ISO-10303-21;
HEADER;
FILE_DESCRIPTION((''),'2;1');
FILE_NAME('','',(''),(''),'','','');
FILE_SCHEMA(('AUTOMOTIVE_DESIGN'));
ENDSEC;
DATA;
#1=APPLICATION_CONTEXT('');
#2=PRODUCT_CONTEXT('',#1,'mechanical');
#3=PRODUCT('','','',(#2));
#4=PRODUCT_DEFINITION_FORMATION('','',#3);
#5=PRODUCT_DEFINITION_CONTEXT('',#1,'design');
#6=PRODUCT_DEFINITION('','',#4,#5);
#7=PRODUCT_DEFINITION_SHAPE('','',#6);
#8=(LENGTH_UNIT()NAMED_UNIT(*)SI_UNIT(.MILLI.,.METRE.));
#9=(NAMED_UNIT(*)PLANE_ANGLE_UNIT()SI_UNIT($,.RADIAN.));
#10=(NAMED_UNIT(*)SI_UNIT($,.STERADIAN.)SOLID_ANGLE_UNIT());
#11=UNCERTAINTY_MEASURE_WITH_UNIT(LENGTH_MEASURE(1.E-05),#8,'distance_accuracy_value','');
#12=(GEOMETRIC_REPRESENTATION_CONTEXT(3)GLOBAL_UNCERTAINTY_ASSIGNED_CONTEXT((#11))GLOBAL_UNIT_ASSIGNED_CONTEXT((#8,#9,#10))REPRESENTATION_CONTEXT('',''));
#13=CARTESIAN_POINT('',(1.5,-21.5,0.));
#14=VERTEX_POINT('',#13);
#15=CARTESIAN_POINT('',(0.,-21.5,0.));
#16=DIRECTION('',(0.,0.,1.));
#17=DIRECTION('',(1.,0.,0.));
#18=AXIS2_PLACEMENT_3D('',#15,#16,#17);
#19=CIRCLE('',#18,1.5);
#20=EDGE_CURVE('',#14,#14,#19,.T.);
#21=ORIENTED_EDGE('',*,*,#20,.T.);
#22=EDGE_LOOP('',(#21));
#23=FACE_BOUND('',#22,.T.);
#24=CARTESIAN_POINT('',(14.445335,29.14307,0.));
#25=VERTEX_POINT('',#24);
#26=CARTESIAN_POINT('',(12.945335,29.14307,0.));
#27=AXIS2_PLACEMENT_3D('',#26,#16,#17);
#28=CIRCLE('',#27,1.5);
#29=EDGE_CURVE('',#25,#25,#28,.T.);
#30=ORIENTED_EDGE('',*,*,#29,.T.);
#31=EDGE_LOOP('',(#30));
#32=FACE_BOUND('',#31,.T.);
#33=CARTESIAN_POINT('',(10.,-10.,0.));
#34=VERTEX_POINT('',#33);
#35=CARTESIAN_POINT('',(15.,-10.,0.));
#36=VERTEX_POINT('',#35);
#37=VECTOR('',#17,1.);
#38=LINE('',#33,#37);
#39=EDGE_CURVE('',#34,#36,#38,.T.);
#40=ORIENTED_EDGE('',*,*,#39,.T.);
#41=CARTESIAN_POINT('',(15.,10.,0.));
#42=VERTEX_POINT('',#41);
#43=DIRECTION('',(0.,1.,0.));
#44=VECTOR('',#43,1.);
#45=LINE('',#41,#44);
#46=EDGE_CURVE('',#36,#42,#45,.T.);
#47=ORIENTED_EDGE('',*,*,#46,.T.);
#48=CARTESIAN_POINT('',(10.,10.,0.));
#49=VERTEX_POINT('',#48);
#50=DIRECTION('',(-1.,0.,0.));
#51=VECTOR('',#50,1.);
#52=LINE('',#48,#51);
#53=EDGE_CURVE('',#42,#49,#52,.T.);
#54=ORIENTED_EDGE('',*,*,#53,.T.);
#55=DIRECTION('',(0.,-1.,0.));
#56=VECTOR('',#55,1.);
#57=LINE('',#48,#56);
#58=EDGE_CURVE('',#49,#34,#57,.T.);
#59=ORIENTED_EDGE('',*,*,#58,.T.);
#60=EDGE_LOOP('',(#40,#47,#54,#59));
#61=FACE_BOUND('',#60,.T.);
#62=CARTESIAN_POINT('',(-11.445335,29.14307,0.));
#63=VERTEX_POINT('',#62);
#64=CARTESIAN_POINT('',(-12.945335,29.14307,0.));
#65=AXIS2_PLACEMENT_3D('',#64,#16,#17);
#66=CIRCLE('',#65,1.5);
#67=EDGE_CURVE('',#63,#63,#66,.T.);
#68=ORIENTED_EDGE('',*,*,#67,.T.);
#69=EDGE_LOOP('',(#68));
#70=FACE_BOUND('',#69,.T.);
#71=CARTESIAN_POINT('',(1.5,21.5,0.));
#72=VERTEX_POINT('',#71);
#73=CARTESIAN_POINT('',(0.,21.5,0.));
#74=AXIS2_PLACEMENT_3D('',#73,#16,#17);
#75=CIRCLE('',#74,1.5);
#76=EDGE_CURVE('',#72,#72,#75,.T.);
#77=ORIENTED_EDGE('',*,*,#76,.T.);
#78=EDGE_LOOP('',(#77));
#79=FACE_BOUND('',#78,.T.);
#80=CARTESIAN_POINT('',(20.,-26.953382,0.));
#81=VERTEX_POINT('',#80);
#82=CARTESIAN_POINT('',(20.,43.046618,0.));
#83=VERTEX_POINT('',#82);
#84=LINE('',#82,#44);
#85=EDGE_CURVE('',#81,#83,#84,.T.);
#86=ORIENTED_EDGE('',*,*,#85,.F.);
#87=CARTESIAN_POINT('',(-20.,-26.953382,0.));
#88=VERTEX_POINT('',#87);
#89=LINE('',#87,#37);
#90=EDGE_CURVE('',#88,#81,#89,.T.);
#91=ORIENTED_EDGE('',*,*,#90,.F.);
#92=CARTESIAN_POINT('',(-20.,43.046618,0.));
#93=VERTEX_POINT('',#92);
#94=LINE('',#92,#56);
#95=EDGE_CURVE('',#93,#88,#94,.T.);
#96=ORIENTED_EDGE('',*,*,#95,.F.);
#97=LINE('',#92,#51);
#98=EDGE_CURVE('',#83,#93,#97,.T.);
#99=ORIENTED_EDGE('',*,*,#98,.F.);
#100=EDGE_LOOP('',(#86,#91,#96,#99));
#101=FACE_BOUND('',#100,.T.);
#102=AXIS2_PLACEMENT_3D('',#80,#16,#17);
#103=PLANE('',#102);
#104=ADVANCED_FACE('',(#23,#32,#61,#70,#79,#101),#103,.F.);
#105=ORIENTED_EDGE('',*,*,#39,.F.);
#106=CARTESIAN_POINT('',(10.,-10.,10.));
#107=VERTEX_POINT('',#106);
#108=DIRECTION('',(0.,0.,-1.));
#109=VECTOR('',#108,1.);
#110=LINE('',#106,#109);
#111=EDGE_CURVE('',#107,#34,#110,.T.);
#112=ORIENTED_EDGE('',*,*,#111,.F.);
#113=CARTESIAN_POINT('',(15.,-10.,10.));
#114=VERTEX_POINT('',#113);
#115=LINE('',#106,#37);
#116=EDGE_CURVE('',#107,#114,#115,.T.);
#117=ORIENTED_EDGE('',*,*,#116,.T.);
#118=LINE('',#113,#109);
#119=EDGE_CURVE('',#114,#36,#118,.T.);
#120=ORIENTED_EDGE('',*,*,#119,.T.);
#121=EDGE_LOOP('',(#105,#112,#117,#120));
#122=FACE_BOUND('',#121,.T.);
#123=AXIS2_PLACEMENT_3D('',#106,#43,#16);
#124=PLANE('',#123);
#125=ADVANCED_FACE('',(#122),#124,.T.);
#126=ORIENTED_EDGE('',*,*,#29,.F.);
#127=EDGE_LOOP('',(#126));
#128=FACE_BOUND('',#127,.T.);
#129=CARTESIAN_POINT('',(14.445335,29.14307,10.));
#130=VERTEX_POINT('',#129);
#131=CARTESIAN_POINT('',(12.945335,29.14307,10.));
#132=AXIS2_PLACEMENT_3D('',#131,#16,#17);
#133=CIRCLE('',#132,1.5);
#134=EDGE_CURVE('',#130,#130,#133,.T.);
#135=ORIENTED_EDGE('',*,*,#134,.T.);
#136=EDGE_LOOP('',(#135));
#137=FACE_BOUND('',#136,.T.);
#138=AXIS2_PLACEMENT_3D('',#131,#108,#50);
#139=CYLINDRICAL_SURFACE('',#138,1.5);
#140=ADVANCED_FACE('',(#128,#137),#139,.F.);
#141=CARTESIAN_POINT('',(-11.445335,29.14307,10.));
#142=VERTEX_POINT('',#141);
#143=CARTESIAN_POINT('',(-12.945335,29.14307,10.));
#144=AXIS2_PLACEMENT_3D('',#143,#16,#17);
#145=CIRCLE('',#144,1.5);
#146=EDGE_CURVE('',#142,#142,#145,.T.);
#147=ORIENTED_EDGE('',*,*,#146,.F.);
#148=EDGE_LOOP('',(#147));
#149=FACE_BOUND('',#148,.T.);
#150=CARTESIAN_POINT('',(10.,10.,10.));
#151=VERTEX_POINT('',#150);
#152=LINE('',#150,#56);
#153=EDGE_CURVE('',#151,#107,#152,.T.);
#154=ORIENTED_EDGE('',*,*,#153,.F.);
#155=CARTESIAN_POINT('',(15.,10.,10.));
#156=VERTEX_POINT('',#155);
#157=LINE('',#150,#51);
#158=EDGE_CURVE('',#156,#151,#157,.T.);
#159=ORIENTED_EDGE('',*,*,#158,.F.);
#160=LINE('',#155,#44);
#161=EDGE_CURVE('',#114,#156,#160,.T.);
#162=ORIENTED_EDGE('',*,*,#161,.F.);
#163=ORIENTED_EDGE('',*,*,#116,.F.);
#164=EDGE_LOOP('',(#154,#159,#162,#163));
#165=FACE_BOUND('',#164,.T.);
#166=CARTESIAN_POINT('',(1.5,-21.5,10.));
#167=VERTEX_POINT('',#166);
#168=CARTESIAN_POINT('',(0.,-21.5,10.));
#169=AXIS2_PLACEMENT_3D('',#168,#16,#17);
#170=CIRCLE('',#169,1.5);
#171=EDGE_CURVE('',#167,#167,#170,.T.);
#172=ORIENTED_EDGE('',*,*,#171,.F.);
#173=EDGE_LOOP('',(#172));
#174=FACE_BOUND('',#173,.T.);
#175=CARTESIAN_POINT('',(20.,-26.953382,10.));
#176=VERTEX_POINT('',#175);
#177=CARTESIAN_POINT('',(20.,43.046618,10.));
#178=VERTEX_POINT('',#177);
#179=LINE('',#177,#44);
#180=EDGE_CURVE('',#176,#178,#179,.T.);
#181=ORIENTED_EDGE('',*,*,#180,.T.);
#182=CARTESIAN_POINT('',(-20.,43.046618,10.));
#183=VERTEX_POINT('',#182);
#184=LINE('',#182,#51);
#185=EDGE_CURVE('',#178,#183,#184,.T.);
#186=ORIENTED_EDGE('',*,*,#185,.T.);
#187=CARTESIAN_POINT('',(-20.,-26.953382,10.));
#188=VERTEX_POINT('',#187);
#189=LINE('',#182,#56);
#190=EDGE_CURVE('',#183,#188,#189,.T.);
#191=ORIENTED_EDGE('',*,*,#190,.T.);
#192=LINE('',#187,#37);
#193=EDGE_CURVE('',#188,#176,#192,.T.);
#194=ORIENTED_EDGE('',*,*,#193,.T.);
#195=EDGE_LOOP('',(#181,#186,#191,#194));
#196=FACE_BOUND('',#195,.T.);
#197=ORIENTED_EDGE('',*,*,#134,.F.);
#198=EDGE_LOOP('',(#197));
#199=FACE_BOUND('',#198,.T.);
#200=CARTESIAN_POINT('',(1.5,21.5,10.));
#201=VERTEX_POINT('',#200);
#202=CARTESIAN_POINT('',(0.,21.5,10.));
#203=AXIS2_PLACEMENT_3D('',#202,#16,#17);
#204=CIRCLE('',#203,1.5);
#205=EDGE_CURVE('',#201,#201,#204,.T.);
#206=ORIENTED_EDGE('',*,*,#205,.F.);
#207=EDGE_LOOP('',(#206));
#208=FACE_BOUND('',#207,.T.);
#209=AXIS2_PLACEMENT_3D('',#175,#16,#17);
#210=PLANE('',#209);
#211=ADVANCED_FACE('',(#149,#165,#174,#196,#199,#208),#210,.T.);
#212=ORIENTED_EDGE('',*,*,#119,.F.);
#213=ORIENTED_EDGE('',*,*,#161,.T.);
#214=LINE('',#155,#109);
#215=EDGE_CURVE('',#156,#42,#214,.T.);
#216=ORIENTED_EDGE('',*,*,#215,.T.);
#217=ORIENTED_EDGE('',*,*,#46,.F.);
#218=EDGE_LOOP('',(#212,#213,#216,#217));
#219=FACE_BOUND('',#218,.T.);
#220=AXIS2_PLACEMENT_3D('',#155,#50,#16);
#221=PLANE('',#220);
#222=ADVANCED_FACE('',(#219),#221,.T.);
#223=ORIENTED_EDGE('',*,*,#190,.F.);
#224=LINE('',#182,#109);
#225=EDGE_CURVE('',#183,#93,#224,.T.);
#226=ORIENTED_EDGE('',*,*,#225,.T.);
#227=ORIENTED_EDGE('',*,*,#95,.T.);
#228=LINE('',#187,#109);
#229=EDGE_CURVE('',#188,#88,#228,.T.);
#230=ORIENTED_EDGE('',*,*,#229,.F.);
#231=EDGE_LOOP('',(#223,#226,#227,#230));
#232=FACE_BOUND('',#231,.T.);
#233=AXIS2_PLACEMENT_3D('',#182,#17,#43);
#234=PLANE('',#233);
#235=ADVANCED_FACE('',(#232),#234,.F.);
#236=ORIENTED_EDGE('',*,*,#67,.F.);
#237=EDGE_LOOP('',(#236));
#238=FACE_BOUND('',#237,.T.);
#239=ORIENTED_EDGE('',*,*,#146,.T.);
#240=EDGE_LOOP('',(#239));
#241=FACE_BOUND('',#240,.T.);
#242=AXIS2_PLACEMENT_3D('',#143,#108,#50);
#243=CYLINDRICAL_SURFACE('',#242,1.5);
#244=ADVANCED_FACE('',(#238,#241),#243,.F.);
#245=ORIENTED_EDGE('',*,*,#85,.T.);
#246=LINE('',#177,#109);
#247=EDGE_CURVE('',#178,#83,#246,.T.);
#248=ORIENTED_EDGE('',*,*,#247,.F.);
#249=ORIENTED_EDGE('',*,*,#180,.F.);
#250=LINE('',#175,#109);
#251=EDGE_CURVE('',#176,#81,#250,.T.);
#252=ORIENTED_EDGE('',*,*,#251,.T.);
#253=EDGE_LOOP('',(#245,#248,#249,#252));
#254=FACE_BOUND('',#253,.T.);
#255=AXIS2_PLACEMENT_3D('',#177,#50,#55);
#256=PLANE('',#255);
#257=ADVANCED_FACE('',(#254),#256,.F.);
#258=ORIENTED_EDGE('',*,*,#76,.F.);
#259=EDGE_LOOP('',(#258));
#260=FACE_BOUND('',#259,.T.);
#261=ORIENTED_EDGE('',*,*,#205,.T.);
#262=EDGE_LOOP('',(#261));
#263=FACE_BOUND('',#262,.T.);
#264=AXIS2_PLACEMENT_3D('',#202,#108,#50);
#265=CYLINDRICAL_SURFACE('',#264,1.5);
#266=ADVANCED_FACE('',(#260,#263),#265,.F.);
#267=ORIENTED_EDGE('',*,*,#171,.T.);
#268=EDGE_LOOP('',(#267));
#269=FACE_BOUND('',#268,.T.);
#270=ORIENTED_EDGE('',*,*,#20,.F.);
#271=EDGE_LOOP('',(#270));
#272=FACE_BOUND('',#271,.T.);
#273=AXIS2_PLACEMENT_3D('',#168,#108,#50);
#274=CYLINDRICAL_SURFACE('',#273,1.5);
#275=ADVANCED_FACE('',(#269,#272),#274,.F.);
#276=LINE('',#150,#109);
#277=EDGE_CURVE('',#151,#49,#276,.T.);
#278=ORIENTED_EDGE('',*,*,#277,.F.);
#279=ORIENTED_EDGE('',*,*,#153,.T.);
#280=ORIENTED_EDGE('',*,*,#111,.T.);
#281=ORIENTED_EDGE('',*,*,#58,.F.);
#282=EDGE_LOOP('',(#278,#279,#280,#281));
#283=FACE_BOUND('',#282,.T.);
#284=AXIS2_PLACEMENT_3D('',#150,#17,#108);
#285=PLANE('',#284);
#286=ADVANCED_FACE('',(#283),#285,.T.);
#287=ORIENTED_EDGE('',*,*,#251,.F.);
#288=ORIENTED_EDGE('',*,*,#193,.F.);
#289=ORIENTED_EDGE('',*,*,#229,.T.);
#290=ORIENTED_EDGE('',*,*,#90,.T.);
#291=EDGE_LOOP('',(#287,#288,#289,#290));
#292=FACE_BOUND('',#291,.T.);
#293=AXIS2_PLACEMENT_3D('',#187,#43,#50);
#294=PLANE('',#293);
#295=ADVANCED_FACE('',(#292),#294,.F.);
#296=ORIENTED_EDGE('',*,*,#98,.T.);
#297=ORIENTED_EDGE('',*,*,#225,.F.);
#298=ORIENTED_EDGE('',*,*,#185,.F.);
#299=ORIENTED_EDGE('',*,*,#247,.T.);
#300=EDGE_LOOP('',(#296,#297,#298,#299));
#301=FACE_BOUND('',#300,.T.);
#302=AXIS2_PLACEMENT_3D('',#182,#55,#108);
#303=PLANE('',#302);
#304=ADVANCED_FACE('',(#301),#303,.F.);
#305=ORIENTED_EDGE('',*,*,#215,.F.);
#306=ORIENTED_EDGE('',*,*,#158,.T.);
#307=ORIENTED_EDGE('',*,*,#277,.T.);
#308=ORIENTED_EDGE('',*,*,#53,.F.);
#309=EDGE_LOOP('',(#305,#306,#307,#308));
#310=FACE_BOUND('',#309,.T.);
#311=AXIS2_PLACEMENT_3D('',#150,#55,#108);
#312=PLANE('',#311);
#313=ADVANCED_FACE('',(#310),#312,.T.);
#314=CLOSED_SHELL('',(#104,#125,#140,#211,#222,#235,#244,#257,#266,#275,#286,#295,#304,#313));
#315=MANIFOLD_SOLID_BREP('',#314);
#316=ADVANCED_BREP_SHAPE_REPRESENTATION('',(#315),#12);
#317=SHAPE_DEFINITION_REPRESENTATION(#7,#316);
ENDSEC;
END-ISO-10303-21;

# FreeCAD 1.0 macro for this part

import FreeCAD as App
import Part
import Sketcher
Q = App.Units.Quantity

doc = App.newDocument("Part")
body = doc.addObject("PartDesign::Body", "Body")

# Sketch on XY plane
sketch1 = body.newObject("Sketcher::SketchObject", "Sketch")
sketch1.AttachmentSupport = (doc.getObject("XY_Plane"), [""])
sketch1.MapMode = "FlatFace"
sketch1.addGeometry([
    Part.LineSegment(App.Vector(-20, 43, 0), App.Vector(-20, -27, 0)),  # 0
    Part.LineSegment(App.Vector(-20, -27, 0), App.Vector(20, -27, 0)),  # 1
    Part.LineSegment(App.Vector(20, -27, 0), App.Vector(20, 43, 0)),  # 2
    Part.LineSegment(App.Vector(20, 43, 0), App.Vector(-20, 43, 0)),  # 3
    Part.Circle(App.Vector(0, -21.5, 0), App.Vector(0, 0, 1), 1.5),  # 4
    Part.LineSegment(App.Vector(15, -10, 0), App.Vector(10, -10, 0)),  # 5
    Part.LineSegment(App.Vector(10, -10, 0), App.Vector(10, 10, 0)),  # 6
    Part.LineSegment(App.Vector(10, 10, 0), App.Vector(15, 10, 0)),  # 7
    Part.LineSegment(App.Vector(15, 10, 0), App.Vector(15, -10, 0)),  # 8
    Part.Circle(App.Vector(-12.9, 29.1, 0), App.Vector(0, 0, 1), 1.5),  # 9
    Part.Circle(App.Vector(0, 21.5, 0), App.Vector(0, 0, 1), 1.5),  # 10
    Part.Circle(App.Vector(12.9, 29.1, 0), App.Vector(0, 0, 1), 1.5),  # 11
], False)
sketch1.addConstraint([
    Sketcher.Constraint("Coincident", 0, 2, 1, 1),
    Sketcher.Constraint("Coincident", 1, 2, 2, 1),
    Sketcher.Constraint("Coincident", 2, 2, 3, 1),
    Sketcher.Constraint("Coincident", 3, 2, 0, 1),
    Sketcher.Constraint("Coincident", 5, 2, 6, 1),
    Sketcher.Constraint("Coincident", 6, 2, 7, 1),
    Sketcher.Constraint("Coincident", 7, 2, 8, 1),
    Sketcher.Constraint("Coincident", 8, 2, 5, 1),
    Sketcher.Constraint("Vertical", 0),
    Sketcher.Constraint("Horizontal", 1),
    Sketcher.Constraint("Vertical", 2),
    Sketcher.Constraint("Horizontal", 3),
    Sketcher.Constraint("Horizontal", 5),
    Sketcher.Constraint("Vertical", 6),
    Sketcher.Constraint("Horizontal", 7),
    Sketcher.Constraint("Vertical", 8),
    Sketcher.Constraint("Equal", 4, 9),
    Sketcher.Constraint("Equal", 9, 10),
    Sketcher.Constraint("Equal", 10, 11),
    Sketcher.Constraint("Symmetric", 4, 3, 10, 3, -1, 1),
    Sketcher.Constraint("Symmetric", 9, 3, 11, 3, -2),
    Sketcher.Constraint("PointOnObject", 4, 3, -2),
    Sketcher.Constraint("Diameter", 4, Q("3 mm")),
    Sketcher.Constraint("DistanceX", 1, 1, 1, 2, Q("40 mm")),
    Sketcher.Constraint("DistanceX", 5, 2, 5, 1, Q("5 mm")),
    Sketcher.Constraint("DistanceY", 0, 2, 0, 1, Q("70 mm")),
    Sketcher.Constraint("DistanceY", 6, 1, 6, 2, Q("20 mm")),
    Sketcher.Constraint("DistanceX", 0, 2, -1, 1, Q("20 mm")),
    Sketcher.Constraint("DistanceX", -1, 1, 5, 2, Q("10 mm")),
    Sketcher.Constraint("DistanceY", 5, 2, -1, 1, Q("10 mm")),
    Sketcher.Constraint("DistanceY", 4, 3, 10, 3, Q("43 mm")),
    Sketcher.Constraint("DistanceY", -1, 1, 9, 3, Q("29.14307 mm")),
    Sketcher.Constraint("DistanceX", 9, 3, 11, 3, Q("25.89067 mm")),
    Sketcher.Constraint("DistanceY", 0, 2, -1, 1, Q("26.953382 mm")),
])
pad1 = body.newObject("PartDesign::Pad", "Pad")
pad1.Profile = sketch1
pad1.Length = 10

doc.recompute()
